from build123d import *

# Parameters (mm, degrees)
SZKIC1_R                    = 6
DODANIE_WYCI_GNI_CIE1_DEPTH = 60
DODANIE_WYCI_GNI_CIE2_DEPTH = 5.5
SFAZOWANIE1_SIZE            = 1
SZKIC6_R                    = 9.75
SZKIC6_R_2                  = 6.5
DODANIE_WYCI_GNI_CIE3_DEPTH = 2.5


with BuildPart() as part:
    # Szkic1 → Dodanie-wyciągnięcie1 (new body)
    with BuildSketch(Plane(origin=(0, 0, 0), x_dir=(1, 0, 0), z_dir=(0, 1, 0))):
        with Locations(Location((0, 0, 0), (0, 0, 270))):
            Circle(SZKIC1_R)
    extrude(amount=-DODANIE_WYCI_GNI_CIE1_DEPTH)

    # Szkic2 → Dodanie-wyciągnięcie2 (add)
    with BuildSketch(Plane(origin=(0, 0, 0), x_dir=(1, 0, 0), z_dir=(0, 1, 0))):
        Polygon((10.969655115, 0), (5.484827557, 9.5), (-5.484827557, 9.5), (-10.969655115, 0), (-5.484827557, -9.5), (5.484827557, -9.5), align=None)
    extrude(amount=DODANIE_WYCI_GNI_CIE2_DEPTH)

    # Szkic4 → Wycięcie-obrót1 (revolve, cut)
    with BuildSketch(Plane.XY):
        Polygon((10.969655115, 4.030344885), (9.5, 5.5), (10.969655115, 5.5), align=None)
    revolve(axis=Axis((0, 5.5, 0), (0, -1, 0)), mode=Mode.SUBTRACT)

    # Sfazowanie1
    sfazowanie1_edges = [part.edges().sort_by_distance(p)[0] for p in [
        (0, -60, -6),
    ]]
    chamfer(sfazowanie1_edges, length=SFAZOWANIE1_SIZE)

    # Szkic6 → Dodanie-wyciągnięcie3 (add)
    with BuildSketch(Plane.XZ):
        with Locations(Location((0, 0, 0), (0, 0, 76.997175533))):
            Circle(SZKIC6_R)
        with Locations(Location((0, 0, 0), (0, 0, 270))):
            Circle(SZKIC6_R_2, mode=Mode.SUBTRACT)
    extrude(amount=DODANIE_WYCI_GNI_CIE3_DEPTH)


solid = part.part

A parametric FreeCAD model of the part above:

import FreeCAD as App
import Part
import Sketcher
from FreeCAD import Vector
Q = App.Units.Quantity


def edges_at(feature, points):
    """Names of the edges that pass closest to the given points."""
    edges = feature.Shape.Edges
    near = lambda p: min(range(len(edges)), key=lambda i: edges[i].distToShape(Part.Vertex(*p))[0])
    return sorted({f"Edge{near(p) + 1}" for p in points})

doc = App.newDocument("Part")
params = doc.addObject("Spreadsheet::Sheet", "Params")
for row, (alias, value) in enumerate([
    ("sketch1_diameter", "12 mm"),
    ("pad1_length", "60 mm"),
    ("pad2_length", "5.5 mm"),
    ("groove_angle", "360 deg"),
    ("chamfer_size", "1 mm"),
    ("sketch4_diameter", "13 mm"),
    ("sketch4_diameter2", "19.5 mm"),
    ("pad3_length", "2.5 mm"),
], start=1):
    params.set(f"A{row}", alias)
    params.set(f"B{row}", "=" + value)
    params.setAlias(f"B{row}", alias)

body = doc.addObject("PartDesign::Body", "Body")

# Sketch on XZ plane
sketch1 = body.newObject("Sketcher::SketchObject", "Sketch")
sketch1.AttachmentSupport = (doc.getObject("XZ_Plane"), [""])
sketch1.MapMode = "FlatFace"
sketch1.addGeometry(Part.Circle(Vector(0, 0, 0), Vector(0, 0, 1), 6), False)
sketch1.addConstraint([
    Sketcher.Constraint("Coincident", 0, 3, -1, 1),
    Sketcher.Constraint("Diameter", 0, 12.0),
])
sketch1.setExpression("Constraints[1]", "Params.sketch1_diameter")
pad1 = body.newObject("PartDesign::Pad", "Pad")
pad1.Profile = sketch1
pad1.setExpression("Length", "Params.pad1_length")

# Sketch on XZ plane
sketch2 = body.newObject("Sketcher::SketchObject", "Sketch001")
sketch2.AttachmentSupport = (doc.getObject("XZ_Plane"), [""])
sketch2.MapMode = "FlatFace"
sketch2.addGeometry([
    Part.LineSegment(Vector(11, 0, 0), Vector(5, -10, 0)),  # 0
    Part.LineSegment(Vector(5, -10, 0), Vector(-5, -10, 0)),  # 1
    Part.LineSegment(Vector(-5, -10, 0), Vector(-11, 0, 0)),  # 2
    Part.LineSegment(Vector(-11, 0, 0), Vector(-5, 10, 0)),  # 3
    Part.LineSegment(Vector(-5, 10, 0), Vector(5, 10, 0)),  # 4
    Part.LineSegment(Vector(5, 10, 0), Vector(11, 0, 0)),  # 5
], False)
sketch2.addConstraint([
    Sketcher.Constraint("Coincident", 0, 2, 1, 1),
    Sketcher.Constraint("Coincident", 1, 2, 2, 1),
    Sketcher.Constraint("Coincident", 2, 2, 3, 1),
    Sketcher.Constraint("Coincident", 3, 2, 4, 1),
    Sketcher.Constraint("Coincident", 4, 2, 5, 1),
    Sketcher.Constraint("Coincident", 5, 2, 0, 1),
    Sketcher.Constraint("Horizontal", 1),
    Sketcher.Constraint("Horizontal", 4),
    Sketcher.Constraint("Symmetric", 0, 2, 3, 2, -1, 1),
    Sketcher.Constraint("Symmetric", 2, 2, 5, 2, -1, 1),
    Sketcher.Constraint("PointOnObject", 2, 2, -1),
    Sketcher.Constraint("Parallel", 2, 5),
    Sketcher.Constraint("Vertical", 1, 2, 3, 2),
    Sketcher.Constraint("Angle", 0, Q("-120 deg")),
    Sketcher.Constraint("DistanceY", 1, 2, 3, 2, 19.0),
    Sketcher.Constraint("DistanceX", 1, 2, 1, 1, 10.969655),
])
pad2 = body.newObject("PartDesign::Pad", "Pad001")
pad2.Profile = sketch2
pad2.setExpression("Length", "Params.pad2_length")
pad2.Reversed = True

# Sketch on XY plane
sketch3 = body.newObject("Sketcher::SketchObject", "Sketch002")
sketch3.AttachmentSupport = (doc.getObject("XY_Plane"), [""])
sketch3.MapMode = "FlatFace"
sketch3.addGeometry([
    Part.LineSegment(Vector(9.5, 5.5, 0), Vector(11, 4, 0)),
    Part.LineSegment(Vector(11, 4, 0), Vector(11, 5.5, 0)),
    Part.LineSegment(Vector(11, 5.5, 0), Vector(9.5, 5.5, 0)),
], False)
sketch3.addConstraint([
    Sketcher.Constraint("Coincident", 0, 2, 1, 1),
    Sketcher.Constraint("Coincident", 1, 2, 2, 1),
    Sketcher.Constraint("Coincident", 2, 2, 0, 1),
    Sketcher.Constraint("Vertical", 1),
    Sketcher.Constraint("Horizontal", 2),
    Sketcher.Constraint("Equal", 2, 1),
    Sketcher.Constraint("DistanceY", -1, 1, 1, 2, 5.5),
    Sketcher.Constraint("DistanceX", -1, 1, 2, 2, 9.5),
    Sketcher.Constraint("DistanceX", 2, 2, 2, 1, 1.469655),
])
groove = body.newObject("PartDesign::Groove", "Groove")
groove.Profile = sketch3
groove.ReferenceAxis = (sketch3, ["V_Axis"])
groove.setExpression("Angle", "Params.groove_angle")
doc.recompute()

chamfer = body.newObject("PartDesign::Chamfer", "Chamfer")
chamfer.Base = (groove, edges_at(groove, [(0, -60, -6)]))
chamfer.setExpression("Size", "Params.chamfer_size")

# Sketch on XZ plane
sketch4 = body.newObject("Sketcher::SketchObject", "Sketch003")
sketch4.AttachmentSupport = (doc.getObject("XZ_Plane"), [""])
sketch4.MapMode = "FlatFace"
sketch4.addGeometry([
    Part.Circle(Vector(0, 0, 0), Vector(0, 0, 1), 10),
    Part.Circle(Vector(0, 0, 0), Vector(0, 0, 1), 6),
], False)
sketch4.addConstraint([
    Sketcher.Constraint("Coincident", 0, 3, -1, 1),
    Sketcher.Constraint("Coincident", 1, 3, -1, 1),
    Sketcher.Constraint("Diameter", 1, 13.0),
    Sketcher.Constraint("Diameter", 0, 19.5),
])
sketch4.setExpression("Constraints[2]", "Params.sketch4_diameter")
sketch4.setExpression("Constraints[3]", "Params.sketch4_diameter2")
pad3 = body.newObject("PartDesign::Pad", "Pad002")
pad3.Profile = sketch4
pad3.setExpression("Length", "Params.pad3_length")

doc.recompute()
